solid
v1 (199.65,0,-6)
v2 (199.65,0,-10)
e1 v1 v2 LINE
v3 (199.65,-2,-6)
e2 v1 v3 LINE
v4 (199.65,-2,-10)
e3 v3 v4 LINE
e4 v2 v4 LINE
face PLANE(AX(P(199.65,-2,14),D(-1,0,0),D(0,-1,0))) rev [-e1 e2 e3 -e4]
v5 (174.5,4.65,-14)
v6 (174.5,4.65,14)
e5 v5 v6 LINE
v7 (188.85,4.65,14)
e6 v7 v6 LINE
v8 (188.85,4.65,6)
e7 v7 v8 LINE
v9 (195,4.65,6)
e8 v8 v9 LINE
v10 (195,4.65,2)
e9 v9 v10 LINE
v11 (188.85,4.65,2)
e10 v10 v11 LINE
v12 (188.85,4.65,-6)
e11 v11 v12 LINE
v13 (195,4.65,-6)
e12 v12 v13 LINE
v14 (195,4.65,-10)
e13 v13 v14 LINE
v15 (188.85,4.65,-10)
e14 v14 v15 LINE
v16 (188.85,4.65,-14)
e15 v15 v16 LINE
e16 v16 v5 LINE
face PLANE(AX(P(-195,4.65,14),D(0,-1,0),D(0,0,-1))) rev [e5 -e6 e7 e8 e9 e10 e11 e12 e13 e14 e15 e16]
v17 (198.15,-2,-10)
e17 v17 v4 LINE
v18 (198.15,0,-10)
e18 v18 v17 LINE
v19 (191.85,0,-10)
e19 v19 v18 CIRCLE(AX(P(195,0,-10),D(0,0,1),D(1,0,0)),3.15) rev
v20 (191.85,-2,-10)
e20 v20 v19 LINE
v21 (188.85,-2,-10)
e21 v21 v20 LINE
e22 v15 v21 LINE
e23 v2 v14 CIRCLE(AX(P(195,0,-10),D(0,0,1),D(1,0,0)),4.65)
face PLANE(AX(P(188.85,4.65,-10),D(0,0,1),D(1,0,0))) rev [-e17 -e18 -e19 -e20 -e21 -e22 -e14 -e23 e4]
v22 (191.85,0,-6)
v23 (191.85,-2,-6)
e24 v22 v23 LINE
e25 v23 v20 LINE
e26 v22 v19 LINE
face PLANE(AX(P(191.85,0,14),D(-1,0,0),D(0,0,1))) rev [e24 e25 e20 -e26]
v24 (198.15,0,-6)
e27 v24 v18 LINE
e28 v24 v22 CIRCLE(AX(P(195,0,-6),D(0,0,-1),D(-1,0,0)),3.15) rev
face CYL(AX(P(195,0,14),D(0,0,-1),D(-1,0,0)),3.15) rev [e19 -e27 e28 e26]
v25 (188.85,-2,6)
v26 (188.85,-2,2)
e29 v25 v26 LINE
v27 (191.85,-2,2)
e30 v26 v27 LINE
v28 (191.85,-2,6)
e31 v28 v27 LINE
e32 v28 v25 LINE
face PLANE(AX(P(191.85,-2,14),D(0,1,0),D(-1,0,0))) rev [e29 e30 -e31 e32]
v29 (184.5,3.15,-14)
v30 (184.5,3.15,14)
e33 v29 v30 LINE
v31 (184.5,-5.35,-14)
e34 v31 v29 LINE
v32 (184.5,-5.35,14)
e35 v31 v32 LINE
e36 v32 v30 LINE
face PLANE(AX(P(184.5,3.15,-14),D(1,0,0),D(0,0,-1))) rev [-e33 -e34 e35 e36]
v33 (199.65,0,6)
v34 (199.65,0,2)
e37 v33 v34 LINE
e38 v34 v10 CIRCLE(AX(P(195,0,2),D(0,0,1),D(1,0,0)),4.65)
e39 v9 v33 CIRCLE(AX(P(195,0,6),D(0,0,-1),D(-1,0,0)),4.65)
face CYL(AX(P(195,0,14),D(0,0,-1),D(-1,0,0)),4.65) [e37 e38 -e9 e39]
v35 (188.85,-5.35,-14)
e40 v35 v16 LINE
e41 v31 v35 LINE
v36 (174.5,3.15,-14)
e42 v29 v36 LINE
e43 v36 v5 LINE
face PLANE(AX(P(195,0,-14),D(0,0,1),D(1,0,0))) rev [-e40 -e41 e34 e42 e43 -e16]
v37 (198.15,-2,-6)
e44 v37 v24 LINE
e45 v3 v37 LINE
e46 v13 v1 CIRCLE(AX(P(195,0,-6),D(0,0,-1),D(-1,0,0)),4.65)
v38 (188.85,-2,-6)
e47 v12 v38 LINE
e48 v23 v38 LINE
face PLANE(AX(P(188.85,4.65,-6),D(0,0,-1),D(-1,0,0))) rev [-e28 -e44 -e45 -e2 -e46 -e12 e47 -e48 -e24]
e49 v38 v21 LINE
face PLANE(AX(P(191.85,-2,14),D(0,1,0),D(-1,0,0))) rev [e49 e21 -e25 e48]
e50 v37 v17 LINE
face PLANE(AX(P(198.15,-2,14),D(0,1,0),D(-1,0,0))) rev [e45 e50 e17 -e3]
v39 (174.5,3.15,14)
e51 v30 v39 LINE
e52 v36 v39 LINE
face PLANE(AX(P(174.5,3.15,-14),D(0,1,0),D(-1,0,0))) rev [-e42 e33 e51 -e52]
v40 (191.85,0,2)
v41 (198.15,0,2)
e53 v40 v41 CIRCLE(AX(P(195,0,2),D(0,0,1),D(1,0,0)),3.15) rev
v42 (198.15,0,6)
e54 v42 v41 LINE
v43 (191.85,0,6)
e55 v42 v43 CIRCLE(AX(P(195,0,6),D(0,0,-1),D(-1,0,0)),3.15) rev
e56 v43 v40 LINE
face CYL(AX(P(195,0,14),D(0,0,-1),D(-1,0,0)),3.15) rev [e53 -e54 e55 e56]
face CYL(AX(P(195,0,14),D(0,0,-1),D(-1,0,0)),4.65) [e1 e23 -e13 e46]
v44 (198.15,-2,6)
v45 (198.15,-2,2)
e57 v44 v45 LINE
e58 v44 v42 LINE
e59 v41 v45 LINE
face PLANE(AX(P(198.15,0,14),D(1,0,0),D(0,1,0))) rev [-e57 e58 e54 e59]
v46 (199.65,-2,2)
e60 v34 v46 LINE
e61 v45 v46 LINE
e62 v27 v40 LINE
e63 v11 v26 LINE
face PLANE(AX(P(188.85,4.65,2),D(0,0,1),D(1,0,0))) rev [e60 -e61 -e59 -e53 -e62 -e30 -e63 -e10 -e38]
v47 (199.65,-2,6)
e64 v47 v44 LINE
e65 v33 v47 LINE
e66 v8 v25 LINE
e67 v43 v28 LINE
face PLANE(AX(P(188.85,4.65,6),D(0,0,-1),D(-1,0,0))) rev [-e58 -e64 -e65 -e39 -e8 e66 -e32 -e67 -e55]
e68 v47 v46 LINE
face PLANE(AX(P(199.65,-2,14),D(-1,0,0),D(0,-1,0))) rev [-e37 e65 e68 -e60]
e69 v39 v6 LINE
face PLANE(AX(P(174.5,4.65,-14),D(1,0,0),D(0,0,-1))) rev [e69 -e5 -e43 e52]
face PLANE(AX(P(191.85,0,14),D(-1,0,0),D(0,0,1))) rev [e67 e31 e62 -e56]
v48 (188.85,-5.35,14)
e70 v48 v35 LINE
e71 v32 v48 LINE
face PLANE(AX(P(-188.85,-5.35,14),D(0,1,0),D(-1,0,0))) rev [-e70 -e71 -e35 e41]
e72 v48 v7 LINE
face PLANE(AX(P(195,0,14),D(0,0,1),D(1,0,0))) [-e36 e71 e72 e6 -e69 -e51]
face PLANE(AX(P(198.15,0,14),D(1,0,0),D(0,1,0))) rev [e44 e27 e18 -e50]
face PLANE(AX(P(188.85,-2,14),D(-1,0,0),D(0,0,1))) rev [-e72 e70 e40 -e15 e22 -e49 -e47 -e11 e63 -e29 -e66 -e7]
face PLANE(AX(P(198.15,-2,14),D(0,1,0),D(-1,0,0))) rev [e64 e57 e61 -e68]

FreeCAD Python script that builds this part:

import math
import FreeCAD as App
import Part
import Sketcher
from FreeCAD import Vector
Q = App.Units.Quantity


def add_polygon(sketch, points):
    """Adds a closed chain of lines whose ends are joined by coincident constraints."""
    first, n = sketch.GeometryCount, len(points)
    for a, b in zip(points, points[1:] + points[:1]):
        sketch.addGeometry(Part.LineSegment(App.Vector(*a, 0), App.Vector(*b, 0)), False)
    for i in range(n):
        sketch.addConstraint(Sketcher.Constraint("Coincident", first + i, 2, first + (i + 1) % n, 1))

doc = App.newDocument("Part")
body = doc.addObject("PartDesign::Body", "Body")

# Sketch on XY plane
sketch1 = body.newObject("Sketcher::SketchObject", "Sketch")
sketch1.AttachmentSupport = (doc.getObject("XY_Plane"), [""])
sketch1.MapMode = "FlatFace"
sketch1.addGeometry(Part.LineSegment(Vector(-198.15, -2, 0), Vector(-198.15, 0, 0)), False)
sketch1.addGeometry(Part.ArcOfCircle(Part.Circle(Vector(-195, 0, 0), Vector(0, 0, 1), 3.15), math.radians(0), math.radians(180)), False)
sketch1.addGeometry(Part.LineSegment(Vector(-191.85, 0, 0), Vector(-191.85, -2, 0)), False)
sketch1.addGeometry(Part.LineSegment(Vector(-191.85, -2, 0), Vector(-188.85, -2, 0)), False)
sketch1.addGeometry(Part.LineSegment(Vector(-188.85, -2, 0), Vector(-188.85, -5.35, 0)), False)
sketch1.addGeometry(Part.LineSegment(Vector(-188.85, -5.35, 0), Vector(188.85, -5.35, 0)), False)
sketch1.addGeometry(Part.LineSegment(Vector(188.85, -5.35, 0), Vector(188.85, -2, 0)), False)
sketch1.addGeometry(Part.LineSegment(Vector(188.85, -2, 0), Vector(191.85, -2, 0)), False)
sketch1.addGeometry(Part.LineSegment(Vector(191.85, -2, 0), Vector(191.85, 0, 0)), False)
sketch1.addGeometry(Part.ArcOfCircle(Part.Circle(Vector(195, 0, 0), Vector(0, 0, 1), 3.15), math.radians(0), math.radians(180)), False)
sketch1.addGeometry(Part.LineSegment(Vector(198.15, 0, 0), Vector(198.15, -2, 0)), False)
sketch1.addGeometry(Part.LineSegment(Vector(198.15, -2, 0), Vector(199.65, -2, 0)), False)
sketch1.addGeometry(Part.LineSegment(Vector(199.65, -2, 0), Vector(199.65, 0, 0)), False)
sketch1.addGeometry(Part.ArcOfCircle(Part.Circle(Vector(195, 0, 0), Vector(0, 0, 1), 4.65), math.radians(0), math.radians(90)), False)
sketch1.addGeometry(Part.LineSegment(Vector(195, 4.65, 0), Vector(-195, 4.65, 0)), False)
sketch1.addGeometry(Part.ArcOfCircle(Part.Circle(Vector(-195, 0, 0), Vector(0, 0, 1), 4.65), math.radians(90), math.radians(180)), False)
sketch1.addGeometry(Part.LineSegment(Vector(-199.65, 0, 0), Vector(-199.65, -2, 0)), False)
sketch1.addGeometry(Part.LineSegment(Vector(-199.65, -2, 0), Vector(-198.15, -2, 0)), False)
sketch1.addConstraint(Sketcher.Constraint("Tangent", 0, 2, 1, 2))
sketch1.addConstraint(Sketcher.Constraint("Tangent", 1, 1, 2, 1))
sketch1.addConstraint(Sketcher.Constraint("Coincident", 2, 2, 3, 1))
sketch1.addConstraint(Sketcher.Constraint("Coincident", 3, 2, 4, 1))
sketch1.addConstraint(Sketcher.Constraint("Coincident", 4, 2, 5, 1))
sketch1.addConstraint(Sketcher.Constraint("Coincident", 5, 2, 6, 1))
sketch1.addConstraint(Sketcher.Constraint("Coincident", 6, 2, 7, 1))
sketch1.addConstraint(Sketcher.Constraint("Coincident", 7, 2, 8, 1))
sketch1.addConstraint(Sketcher.Constraint("Tangent", 8, 2, 9, 2))
sketch1.addConstraint(Sketcher.Constraint("Tangent", 9, 1, 10, 1))
sketch1.addConstraint(Sketcher.Constraint("Coincident", 10, 2, 11, 1))
sketch1.addConstraint(Sketcher.Constraint("Coincident", 11, 2, 12, 1))
sketch1.addConstraint(Sketcher.Constraint("Tangent", 12, 2, 13, 1))
sketch1.addConstraint(Sketcher.Constraint("Tangent", 13, 2, 14, 1))
sketch1.addConstraint(Sketcher.Constraint("Tangent", 14, 2, 15, 1))
sketch1.addConstraint(Sketcher.Constraint("Tangent", 15, 2, 16, 1))
sketch1.addConstraint(Sketcher.Constraint("Coincident", 16, 2, 17, 1))
sketch1.addConstraint(Sketcher.Constraint("Coincident", 17, 2, 0, 1))
sketch1.addConstraint(Sketcher.Constraint("Vertical", 0))
sketch1.addConstraint(Sketcher.Constraint("Vertical", 2))
sketch1.addConstraint(Sketcher.Constraint("Horizontal", 3))
sketch1.addConstraint(Sketcher.Constraint("Vertical", 4))
sketch1.addConstraint(Sketcher.Constraint("Horizontal", 5))
sketch1.addConstraint(Sketcher.Constraint("Vertical", 6))
sketch1.addConstraint(Sketcher.Constraint("Horizontal", 7))
sketch1.addConstraint(Sketcher.Constraint("Vertical", 8))
sketch1.addConstraint(Sketcher.Constraint("Vertical", 10))
sketch1.addConstraint(Sketcher.Constraint("Horizontal", 11))
sketch1.addConstraint(Sketcher.Constraint("Vertical", 12))
sketch1.addConstraint(Sketcher.Constraint("Horizontal", 14))
sketch1.addConstraint(Sketcher.Constraint("Vertical", 16))
sketch1.addConstraint(Sketcher.Constraint("Horizontal", 17))
sketch1.addConstraint(Sketcher.Constraint("Coincident", 13, 3, 9, 3))
sketch1.addConstraint(Sketcher.Constraint("Coincident", 15, 3, 1, 3))
sketch1.addConstraint(Sketcher.Constraint("Equal", 1, 9))
sketch1.addConstraint(Sketcher.Constraint("Equal", 13, 15))
sketch1.addConstraint(Sketcher.Constraint("Symmetric", 1, 3, 9, 3, -1, 1))
sketch1.addConstraint(Sketcher.Constraint("Symmetric", 3, 2, 6, 2, -2))
sketch1.addConstraint(Sketcher.Constraint("Horizontal", 7, 2, 10, 2))
sketch1.addConstraint(Sketcher.Constraint("Horizontal", 11, 2, 16, 2))
sketch1.addConstraint(Sketcher.Constraint("DistanceX", 3, 1, 3, 2, Q("3 mm")))
sketch1.addConstraint(Sketcher.Constraint("DistanceX", 14, 2, 14, 1, Q("390 mm")))
sketch1.addConstraint(Sketcher.Constraint("DistanceY", 0, 1, 0, 2, Q("2 mm")))
sketch1.addConstraint(Sketcher.Constraint("Radius", 1, Q("3.15 mm")))
sketch1.addConstraint(Sketcher.Constraint("Radius", 13, Q("4.65 mm")))
sketch1.addConstraint(Sketcher.Constraint("DistanceY", 4, 2, 4, 1, Q("3.35 mm")))
pad1 = body.newObject("PartDesign::Pad", "Pad")
pad1.Profile = sketch1
pad1.Length = 28
pad1.Midplane = True

# Sketch on XZ plane
sketch2 = body.newObject("Sketcher::SketchObject", "Sketch001")
sketch2.AttachmentSupport = (doc.getObject("XZ_Plane"), [""])
sketch2.MapMode = "FlatFace"
sketch2.AttachmentOffset = App.Placement(Vector(0, 0, 5.35), App.Rotation())
add_polygon(sketch2, [(-199.65, 14), (-199.65, 10), (-188.85, 10), (-188.85, 14)])  # lines 0-3
add_polygon(sketch2, [(-199.65, 6), (-199.65, -2), (-188.85, -2), (-188.85, 6)])  # lines 4-7
add_polygon(sketch2, [(-199.65, -6), (-199.65, -14), (-188.85, -14), (-188.85, -6)])  # lines 8-11
add_polygon(sketch2, [(188.85, 14), (188.85, 6), (199.65, 6), (199.65, 14)])  # lines 12-15
add_polygon(sketch2, [(188.85, 2), (188.85, -6), (199.65, -6), (199.65, 2)])  # lines 16-19
add_polygon(sketch2, [(188.85, -10), (188.85, -14), (199.65, -14), (199.65, -10)])  # lines 20-23
sketch2.addConstraint(Sketcher.Constraint("Vertical", 0))
sketch2.addConstraint(Sketcher.Constraint("Horizontal", 1))
sketch2.addConstraint(Sketcher.Constraint("Vertical", 2))
sketch2.addConstraint(Sketcher.Constraint("Horizontal", 3))
sketch2.addConstraint(Sketcher.Constraint("Vertical", 4))
sketch2.addConstraint(Sketcher.Constraint("Horizontal", 5))
sketch2.addConstraint(Sketcher.Constraint("Vertical", 6))
sketch2.addConstraint(Sketcher.Constraint("Horizontal", 7))
sketch2.addConstraint(Sketcher.Constraint("Vertical", 8))
sketch2.addConstraint(Sketcher.Constraint("Horizontal", 9))
sketch2.addConstraint(Sketcher.Constraint("Vertical", 10))
sketch2.addConstraint(Sketcher.Constraint("Horizontal", 11))
sketch2.addConstraint(Sketcher.Constraint("Vertical", 12))
sketch2.addConstraint(Sketcher.Constraint("Horizontal", 13))
sketch2.addConstraint(Sketcher.Constraint("Vertical", 14))
sketch2.addConstraint(Sketcher.Constraint("Horizontal", 15))
sketch2.addConstraint(Sketcher.Constraint("Vertical", 16))
sketch2.addConstraint(Sketcher.Constraint("Horizontal", 17))
sketch2.addConstraint(Sketcher.Constraint("Vertical", 18))
sketch2.addConstraint(Sketcher.Constraint("Horizontal", 19))
sketch2.addConstraint(Sketcher.Constraint("Vertical", 20))
sketch2.addConstraint(Sketcher.Constraint("Horizontal", 21))
sketch2.addConstraint(Sketcher.Constraint("Vertical", 22))
sketch2.addConstraint(Sketcher.Constraint("Horizontal", 23))
sketch2.addConstraint(Sketcher.Constraint("Symmetric", 10, 2, 12, 2, -1, 1))
sketch2.addConstraint(Sketcher.Constraint("Symmetric", 8, 2, 14, 2, -1, 1))
sketch2.addConstraint(Sketcher.Constraint("Symmetric", 6, 2, 16, 2, -1, 1))
sketch2.addConstraint(Sketcher.Constraint("Symmetric", 4, 2, 18, 2, -1, 1))
sketch2.addConstraint(Sketcher.Constraint("Symmetric", 2, 2, 20, 2, -1, 1))
sketch2.addConstraint(Sketcher.Constraint("Symmetric", 0, 2, 22, 2, -1, 1))
sketch2.addConstraint(Sketcher.Constraint("Symmetric", 6, 2, 12, 2, -2))
sketch2.addConstraint(Sketcher.Constraint("Symmetric", 3, 2, 14, 2, -2))
sketch2.addConstraint(Sketcher.Constraint("Vertical", 3, 2, 4, 2))
sketch2.addConstraint(Sketcher.Constraint("Vertical", 2, 2, 5, 2))
sketch2.addConstraint(Sketcher.Constraint("Equal", 6, 8))
sketch2.addConstraint(Sketcher.Constraint("DistanceY", 0, 2, 0, 1, Q("4 mm")))
sketch2.addConstraint(Sketcher.Constraint("DistanceY", 4, 2, 4, 1, Q("8 mm")))
sketch2.addConstraint(Sketcher.Constraint("DistanceX", 1, 1, 1, 2, Q("10.8 mm")))
sketch2.addConstraint(Sketcher.Constraint("DistanceY", -1, 1, 0, 2, Q("10 mm")))
sketch2.addConstraint(Sketcher.Constraint("DistanceX", 6, 2, 12, 2, Q("377.7 mm")))
pocket1 = body.newObject("PartDesign::Pocket", "Pocket")
pocket1.Profile = sketch2
pocket1.Type = "ThroughAll"

# Sketch on XY plane
sketch3 = body.newObject("Sketcher::SketchObject", "Sketch002")
sketch3.AttachmentSupport = (doc.getObject("XY_Plane"), [""])
sketch3.MapMode = "FlatFace"
sketch3.AttachmentOffset = App.Placement(Vector(0, 0, 14), App.Rotation())
add_polygon(sketch3, [(174.5, 3.15), (174.5, 4.65), (-199.65, 4.65), (-199.65, -5.35), (184.5, -5.35), (184.5, 3.15)])  # lines 0-5
sketch3.addConstraint(Sketcher.Constraint("Vertical", 0))
sketch3.addConstraint(Sketcher.Constraint("Horizontal", 1))
sketch3.addConstraint(Sketcher.Constraint("Vertical", 2))
sketch3.addConstraint(Sketcher.Constraint("Horizontal", 3))
sketch3.addConstraint(Sketcher.Constraint("Vertical", 4))
sketch3.addConstraint(Sketcher.Constraint("Horizontal", 5))
sketch3.addConstraint(Sketcher.Constraint("Equal", 5, 2))
sketch3.addConstraint(Sketcher.Constraint("DistanceX", 5, 2, 5, 1, Q("10 mm")))
sketch3.addConstraint(Sketcher.Constraint("DistanceY", 0, 1, 0, 2, Q("1.5 mm")))
sketch3.addConstraint(Sketcher.Constraint("DistanceX", 1, 2, 1, 1, Q("374.15 mm")))
sketch3.addConstraint(Sketcher.Constraint("DistanceX", -1, 1, 0, 2, Q("174.5 mm")))
sketch3.addConstraint(Sketcher.Constraint("DistanceY", -1, 1, 0, 2, Q("4.65 mm")))
pocket2 = body.newObject("PartDesign::Pocket", "Pocket001")
pocket2.Profile = sketch3
pocket2.Type = "ThroughAll"

doc.recompute()
